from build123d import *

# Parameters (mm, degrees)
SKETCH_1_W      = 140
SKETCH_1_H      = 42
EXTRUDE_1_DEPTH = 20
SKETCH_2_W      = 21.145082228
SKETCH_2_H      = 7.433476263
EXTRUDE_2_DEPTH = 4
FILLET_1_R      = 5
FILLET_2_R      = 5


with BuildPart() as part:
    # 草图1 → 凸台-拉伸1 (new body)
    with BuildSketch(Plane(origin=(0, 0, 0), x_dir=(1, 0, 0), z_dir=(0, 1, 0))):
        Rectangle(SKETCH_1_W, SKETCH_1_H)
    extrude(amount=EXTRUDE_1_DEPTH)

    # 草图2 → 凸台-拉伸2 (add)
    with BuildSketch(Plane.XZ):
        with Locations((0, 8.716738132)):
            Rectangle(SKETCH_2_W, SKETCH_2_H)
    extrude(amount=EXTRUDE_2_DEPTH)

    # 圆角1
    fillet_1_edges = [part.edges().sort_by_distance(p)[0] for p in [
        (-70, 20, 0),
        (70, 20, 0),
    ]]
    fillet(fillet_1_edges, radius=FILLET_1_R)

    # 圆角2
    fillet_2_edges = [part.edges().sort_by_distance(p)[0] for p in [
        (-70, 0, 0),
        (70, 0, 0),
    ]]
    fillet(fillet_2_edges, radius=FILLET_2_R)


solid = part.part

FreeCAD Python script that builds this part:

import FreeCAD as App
import Part
import Sketcher

V = App.Vector


def edges_at(feature, points):
    """Names of the edges that pass closest to the given points."""
    edges = feature.Shape.Edges
    near = lambda p: min(range(len(edges)), key=lambda i: edges[i].distToShape(Part.Vertex(*p))[0])
    return sorted({f"Edge{near(p) + 1}" for p in points})

doc = App.newDocument("Part")
body = doc.addObject("PartDesign::Body", "Body")

sketch1 = body.newObject("Sketcher::SketchObject", "Sketch")
sketch1.AttachmentSupport = (doc.getObject("XZ_Plane"), [""])
sketch1.MapMode = "FlatFace"
sketch1.addGeometry([
    Part.LineSegment(V(-70, -21, 0), V(-70, 21, 0)),
    Part.LineSegment(V(-70, 21, 0), V(70, 21, 0)),
    Part.LineSegment(V(70, 21, 0), V(70, -21, 0)),
    Part.LineSegment(V(70, -21, 0), V(-70, -21, 0)),
], False)
sketch1.addConstraint([
    Sketcher.Constraint("Coincident", 0, 2, 1, 1),
    Sketcher.Constraint("Coincident", 1, 2, 2, 1),
    Sketcher.Constraint("Coincident", 2, 2, 3, 1),
    Sketcher.Constraint("Coincident", 3, 2, 0, 1),
    Sketcher.Constraint("Vertical", 0),
    Sketcher.Constraint("Horizontal", 1),
    Sketcher.Constraint("Vertical", 2),
    Sketcher.Constraint("Horizontal", 3),
    Sketcher.Constraint("Symmetric", 0, 2, 2, 2, -1, 1),
    Sketcher.Constraint("DistanceX", 1, 1, 1, 2, 140.0),
    Sketcher.Constraint("DistanceY", 0, 1, 0, 2, 42.0),
])
pad1 = body.newObject("PartDesign::Pad", "Pad")
pad1.Profile = sketch1
pad1.Length = 20
pad1.Reversed = True

sketch2 = body.newObject("Sketcher::SketchObject", "Sketch001")
sketch2.AttachmentSupport = (doc.getObject("XZ_Plane"), [""])
sketch2.MapMode = "FlatFace"
sketch2.addGeometry([
    Part.LineSegment(V(-11, 12, 0), V(-11, 5, 0)),
    Part.LineSegment(V(-11, 5, 0), V(11, 5, 0)),
    Part.LineSegment(V(11, 5, 0), V(11, 12, 0)),
    Part.LineSegment(V(11, 12, 0), V(-11, 12, 0)),
], False)
sketch2.addConstraint([
    Sketcher.Constraint("Coincident", 0, 2, 1, 1),
    Sketcher.Constraint("Coincident", 1, 2, 2, 1),
    Sketcher.Constraint("Coincident", 2, 2, 3, 1),
    Sketcher.Constraint("Coincident", 3, 2, 0, 1),
    Sketcher.Constraint("Vertical", 0),
    Sketcher.Constraint("Horizontal", 1),
    Sketcher.Constraint("Vertical", 2),
    Sketcher.Constraint("Horizontal", 3),
    Sketcher.Constraint("DistanceY", -1, 1, 0, 2, 5.0),
    Sketcher.Constraint("DistanceX", 1, 1, 1, 2, 21.145082),
    Sketcher.Constraint("DistanceY", 0, 2, 0, 1, 7.433476),
    Sketcher.Constraint("DistanceX", 0, 2, -1, 1, 10.572541),
])
pad2 = body.newObject("PartDesign::Pad", "Pad001")
pad2.Profile = sketch2
pad2.Length = 4
doc.recompute()

fillet = body.newObject("PartDesign::Fillet", "Fillet")
fillet.Base = (pad2, edges_at(pad2, [(-70, 20, 0), (70, 20, 0)]))
fillet.Radius = 5
doc.recompute()

fillet2 = body.newObject("PartDesign::Fillet", "Fillet001")
fillet2.Base = (fillet, edges_at(fillet, [(-70, 0, 0), (70, 0, 0)]))
fillet2.Radius = 5

doc.recompute()
